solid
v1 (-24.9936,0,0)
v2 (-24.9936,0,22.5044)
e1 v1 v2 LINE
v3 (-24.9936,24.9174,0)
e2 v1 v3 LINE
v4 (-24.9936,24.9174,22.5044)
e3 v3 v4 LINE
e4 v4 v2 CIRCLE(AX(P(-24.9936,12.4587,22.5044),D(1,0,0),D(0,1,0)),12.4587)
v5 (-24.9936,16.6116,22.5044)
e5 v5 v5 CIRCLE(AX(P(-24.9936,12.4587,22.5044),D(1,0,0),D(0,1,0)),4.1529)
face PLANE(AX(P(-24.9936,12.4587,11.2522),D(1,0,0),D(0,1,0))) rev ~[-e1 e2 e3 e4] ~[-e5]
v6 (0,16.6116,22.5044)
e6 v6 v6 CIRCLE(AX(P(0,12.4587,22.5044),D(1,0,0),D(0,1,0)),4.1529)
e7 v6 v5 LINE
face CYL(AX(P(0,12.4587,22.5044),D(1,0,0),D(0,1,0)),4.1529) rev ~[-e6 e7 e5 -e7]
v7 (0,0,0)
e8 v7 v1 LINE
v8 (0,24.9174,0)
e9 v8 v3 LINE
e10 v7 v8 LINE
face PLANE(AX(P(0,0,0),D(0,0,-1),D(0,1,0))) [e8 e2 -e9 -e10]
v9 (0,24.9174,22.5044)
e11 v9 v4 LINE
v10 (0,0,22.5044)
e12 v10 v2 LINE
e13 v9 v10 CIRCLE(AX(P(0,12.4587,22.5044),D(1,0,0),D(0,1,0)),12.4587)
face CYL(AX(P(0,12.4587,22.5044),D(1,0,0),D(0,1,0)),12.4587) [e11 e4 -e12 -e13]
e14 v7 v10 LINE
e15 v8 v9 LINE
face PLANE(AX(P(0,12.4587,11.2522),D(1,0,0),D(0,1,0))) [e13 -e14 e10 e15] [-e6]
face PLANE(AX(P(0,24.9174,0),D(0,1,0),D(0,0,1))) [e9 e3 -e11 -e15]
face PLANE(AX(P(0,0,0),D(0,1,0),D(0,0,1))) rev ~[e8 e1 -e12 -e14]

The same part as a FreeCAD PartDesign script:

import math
import FreeCAD as App
import Part
import Sketcher

V = App.Vector
Q = App.Units.Quantity

doc = App.newDocument("Part")
body = doc.addObject("PartDesign::Body", "Body")

# Sketch on YZ plane
sketch1 = doc.addObject("Sketcher::SketchObject", "Sketch")
body.addObject(sketch1)
sketch1.AttachmentSupport = (doc.YZ_Plane, [""])
sketch1.MapMode = "FlatFace"
sketch1.addGeometry([
    Part.LineSegment(V(0, 23, 0), V(0, 0, 0)),
    Part.LineSegment(V(0, 0, 0), V(25, 0, 0)),
    Part.LineSegment(V(25, 0, 0), V(25, 23, 0)),
    Part.ArcOfCircle(Part.Circle(V(12, 23, 0), V(0, 0, 1), 12), math.radians(0), math.radians(180)),
], False)
sketch1.addConstraint([
    Sketcher.Constraint("Coincident", 0, 2, 1, 1),
    Sketcher.Constraint("Coincident", 1, 2, 2, 1),
    Sketcher.Constraint("Tangent", 2, 2, 3, 1),
    Sketcher.Constraint("Tangent", 3, 2, 0, 1),
    Sketcher.Constraint("Vertical", 0),
    Sketcher.Constraint("Horizontal", 1),
    Sketcher.Constraint("Vertical", 2),
    Sketcher.Constraint("Coincident", 0, 2, -1, 1),
    Sketcher.Constraint("Radius", 3, Q("0.4905 in")),
    Sketcher.Constraint("DistanceY", 0, 2, 0, 1, Q("0.886 in")),
])
pad1 = doc.addObject("PartDesign::Pad", "Pad")
body.addObject(pad1)
pad1.Profile = sketch1
pad1.Length = Q("0.984 in")
pad1.Reversed = True

# Sketch on YZ plane
sketch2 = doc.addObject("Sketcher::SketchObject", "Sketch001")
body.addObject(sketch2)
sketch2.AttachmentSupport = (doc.YZ_Plane, [""])
sketch2.MapMode = "FlatFace"
sketch2.addGeometry(Part.Circle(V(12.5, 22.5, 0), V(0, 0, 1), 4.2), False)
sketch2.addConstraint([
    Sketcher.Constraint("Diameter", 0, Q("0.327 in")),
    Sketcher.Constraint("DistanceY", -1, 1, 0, 3, Q("0.886 in")),
    Sketcher.Constraint("DistanceX", -1, 1, 0, 3, Q("0.4905 in")),
])
pocket1 = doc.addObject("PartDesign::Pocket", "Pocket")
body.addObject(pocket1)
pocket1.Profile = sketch2
pocket1.Type = "ThroughAll"

doc.recompute()
